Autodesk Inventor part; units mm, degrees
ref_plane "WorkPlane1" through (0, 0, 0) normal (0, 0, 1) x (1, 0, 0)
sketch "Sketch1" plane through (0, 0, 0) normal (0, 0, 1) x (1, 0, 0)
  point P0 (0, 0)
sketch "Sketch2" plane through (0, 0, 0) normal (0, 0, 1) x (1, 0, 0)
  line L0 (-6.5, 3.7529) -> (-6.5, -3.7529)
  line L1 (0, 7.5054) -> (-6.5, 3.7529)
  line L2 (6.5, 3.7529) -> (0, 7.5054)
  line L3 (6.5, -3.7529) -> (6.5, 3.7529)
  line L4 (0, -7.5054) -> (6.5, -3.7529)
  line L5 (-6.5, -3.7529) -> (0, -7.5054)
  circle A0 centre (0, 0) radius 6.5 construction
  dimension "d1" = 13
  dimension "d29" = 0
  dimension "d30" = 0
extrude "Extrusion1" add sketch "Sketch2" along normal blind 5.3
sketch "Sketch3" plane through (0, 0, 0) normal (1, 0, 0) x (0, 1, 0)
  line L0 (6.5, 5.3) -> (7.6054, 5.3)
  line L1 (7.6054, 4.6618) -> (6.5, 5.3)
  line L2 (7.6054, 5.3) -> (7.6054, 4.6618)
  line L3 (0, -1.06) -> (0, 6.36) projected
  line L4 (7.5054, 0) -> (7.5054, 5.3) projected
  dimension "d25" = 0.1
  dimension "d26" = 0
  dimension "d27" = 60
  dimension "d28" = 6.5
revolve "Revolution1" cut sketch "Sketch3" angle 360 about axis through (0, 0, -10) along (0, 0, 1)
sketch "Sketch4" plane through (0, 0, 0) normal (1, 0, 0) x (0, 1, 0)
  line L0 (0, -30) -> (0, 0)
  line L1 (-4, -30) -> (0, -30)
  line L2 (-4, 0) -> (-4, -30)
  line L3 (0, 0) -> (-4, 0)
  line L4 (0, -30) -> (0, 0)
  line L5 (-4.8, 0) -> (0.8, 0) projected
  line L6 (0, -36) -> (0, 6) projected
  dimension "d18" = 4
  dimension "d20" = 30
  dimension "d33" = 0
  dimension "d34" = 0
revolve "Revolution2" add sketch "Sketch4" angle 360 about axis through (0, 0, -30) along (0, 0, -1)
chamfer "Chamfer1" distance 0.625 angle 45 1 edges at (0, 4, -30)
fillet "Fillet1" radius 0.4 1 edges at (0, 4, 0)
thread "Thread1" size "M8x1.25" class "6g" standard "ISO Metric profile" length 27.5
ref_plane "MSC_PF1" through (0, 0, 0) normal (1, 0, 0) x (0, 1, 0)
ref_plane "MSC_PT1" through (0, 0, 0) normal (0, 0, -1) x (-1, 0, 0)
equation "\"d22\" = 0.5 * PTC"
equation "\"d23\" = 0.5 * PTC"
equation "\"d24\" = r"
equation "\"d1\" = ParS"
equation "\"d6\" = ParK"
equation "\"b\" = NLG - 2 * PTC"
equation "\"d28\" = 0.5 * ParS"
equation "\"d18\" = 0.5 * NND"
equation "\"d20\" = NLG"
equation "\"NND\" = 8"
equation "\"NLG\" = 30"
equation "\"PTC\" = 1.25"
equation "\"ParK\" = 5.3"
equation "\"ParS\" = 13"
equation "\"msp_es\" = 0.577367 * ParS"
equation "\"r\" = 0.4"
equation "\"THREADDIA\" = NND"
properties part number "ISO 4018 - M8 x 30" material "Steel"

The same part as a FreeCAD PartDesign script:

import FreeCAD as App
import Part
import Sketcher
Q = App.Units.Quantity


def edges_at(feature, points):
    """Names of the edges that pass closest to the given points."""
    edges = feature.Shape.Edges
    near = lambda p: min(range(len(edges)), key=lambda i: edges[i].distToShape(Part.Vertex(*p))[0])
    return sorted({f"Edge{near(p) + 1}" for p in points})


def add_polygon(sketch, points):
    """Adds a closed chain of lines whose ends are joined by coincident constraints."""
    first, n = sketch.GeometryCount, len(points)
    for a, b in zip(points, points[1:] + points[:1]):
        sketch.addGeometry(Part.LineSegment(App.Vector(*a, 0), App.Vector(*b, 0)), False)
    for i in range(n):
        sketch.addConstraint(Sketcher.Constraint("Coincident", first + i, 2, first + (i + 1) % n, 1))

doc = App.newDocument("Part")
body = doc.addObject("PartDesign::Body", "Body")

# Sketch on XY plane
sketch1 = body.newObject("Sketcher::SketchObject", "Sketch")
sketch1.AttachmentSupport = (doc.getObject("XY_Plane"), [""])
sketch1.MapMode = "FlatFace"
add_polygon(sketch1, [(0, 8), (-6, 4), (-6, -4), (0, -8), (6, -4), (6, 4)])  # lines 0-5
sketch1.addConstraint([
    Sketcher.Constraint("Vertical", 1),
    Sketcher.Constraint("Vertical", 4),
    Sketcher.Constraint("Symmetric", 0, 2, 3, 2, -1, 1),
    Sketcher.Constraint("Symmetric", 2, 2, 5, 2, -1, 1),
    Sketcher.Constraint("PointOnObject", 2, 2, -2),
    Sketcher.Constraint("Parallel", 2, 5),
    Sketcher.Constraint("Horizontal", 1, 2, 3, 2),
    Sketcher.Constraint("DistanceX", 1, 2, 3, 2, Q("13 mm")),
    Sketcher.Constraint("DistanceY", 1, 2, 1, 1, Q("7.5058 mm")),
    Sketcher.Constraint("Distance", 0, Q("7.5054 mm")),
])
pad1 = body.newObject("PartDesign::Pad", "Pad")
pad1.Profile = sketch1
pad1.Length = 5.3

# Sketch on YZ plane
sketch2 = body.newObject("Sketcher::SketchObject", "Sketch001")
sketch2.AttachmentSupport = (doc.getObject("YZ_Plane"), [""])
sketch2.MapMode = "FlatFace"
add_polygon(sketch2, [(6.5, 5.3), (7.6, 4.7), (7.6, 5.3)])  # lines 0-2
sketch2.addConstraint([
    Sketcher.Constraint("Vertical", 1),
    Sketcher.Constraint("Horizontal", 2),
    Sketcher.Constraint("DistanceX", -1, 1, 2, 2, Q("6.5 mm")),
    Sketcher.Constraint("Angle", 0, Q("-30 deg")),
    Sketcher.Constraint("DistanceY", -1, 1, 1, 2, Q("5.3 mm")),
    Sketcher.Constraint("DistanceX", 2, 2, 2, 1, Q("1.1054 mm")),
])
groove = body.newObject("PartDesign::Groove", "Groove")
groove.Profile = sketch2
groove.ReferenceAxis = (sketch2, ["V_Axis"])
groove.Angle = 360

# Sketch on YZ plane
sketch3 = body.newObject("Sketcher::SketchObject", "Sketch002")
sketch3.AttachmentSupport = (doc.getObject("YZ_Plane"), [""])
sketch3.MapMode = "FlatFace"
add_polygon(sketch3, [(-4, -30), (0, -30), (0, 0), (-4, 0)])  # lines 0-3
sketch3.addConstraint([
    Sketcher.Constraint("Horizontal", 0),
    Sketcher.Constraint("Vertical", 1),
    Sketcher.Constraint("Horizontal", 2),
    Sketcher.Constraint("Vertical", 3),
    Sketcher.Constraint("Coincident", 1, 2, -1, 1),
    Sketcher.Constraint("DistanceX", 0, 1, 0, 2, Q("4 mm")),
    Sketcher.Constraint("DistanceY", 1, 1, 1, 2, Q("30 mm")),
])
revolution = body.newObject("PartDesign::Revolution", "Revolution")
revolution.Profile = sketch3
revolution.ReferenceAxis = (sketch3, ["V_Axis"])
revolution.Angle = 360
doc.recompute()

chamfer = body.newObject("PartDesign::Chamfer", "Chamfer")
chamfer.Base = (revolution, edges_at(revolution, [(0, 4, -30)]))
chamfer.Size = 0.625
doc.recompute()

fillet = body.newObject("PartDesign::Fillet", "Fillet")
fillet.Base = (chamfer, edges_at(chamfer, [(0, 4, 0)]))
fillet.Radius = 0.4

doc.recompute()
